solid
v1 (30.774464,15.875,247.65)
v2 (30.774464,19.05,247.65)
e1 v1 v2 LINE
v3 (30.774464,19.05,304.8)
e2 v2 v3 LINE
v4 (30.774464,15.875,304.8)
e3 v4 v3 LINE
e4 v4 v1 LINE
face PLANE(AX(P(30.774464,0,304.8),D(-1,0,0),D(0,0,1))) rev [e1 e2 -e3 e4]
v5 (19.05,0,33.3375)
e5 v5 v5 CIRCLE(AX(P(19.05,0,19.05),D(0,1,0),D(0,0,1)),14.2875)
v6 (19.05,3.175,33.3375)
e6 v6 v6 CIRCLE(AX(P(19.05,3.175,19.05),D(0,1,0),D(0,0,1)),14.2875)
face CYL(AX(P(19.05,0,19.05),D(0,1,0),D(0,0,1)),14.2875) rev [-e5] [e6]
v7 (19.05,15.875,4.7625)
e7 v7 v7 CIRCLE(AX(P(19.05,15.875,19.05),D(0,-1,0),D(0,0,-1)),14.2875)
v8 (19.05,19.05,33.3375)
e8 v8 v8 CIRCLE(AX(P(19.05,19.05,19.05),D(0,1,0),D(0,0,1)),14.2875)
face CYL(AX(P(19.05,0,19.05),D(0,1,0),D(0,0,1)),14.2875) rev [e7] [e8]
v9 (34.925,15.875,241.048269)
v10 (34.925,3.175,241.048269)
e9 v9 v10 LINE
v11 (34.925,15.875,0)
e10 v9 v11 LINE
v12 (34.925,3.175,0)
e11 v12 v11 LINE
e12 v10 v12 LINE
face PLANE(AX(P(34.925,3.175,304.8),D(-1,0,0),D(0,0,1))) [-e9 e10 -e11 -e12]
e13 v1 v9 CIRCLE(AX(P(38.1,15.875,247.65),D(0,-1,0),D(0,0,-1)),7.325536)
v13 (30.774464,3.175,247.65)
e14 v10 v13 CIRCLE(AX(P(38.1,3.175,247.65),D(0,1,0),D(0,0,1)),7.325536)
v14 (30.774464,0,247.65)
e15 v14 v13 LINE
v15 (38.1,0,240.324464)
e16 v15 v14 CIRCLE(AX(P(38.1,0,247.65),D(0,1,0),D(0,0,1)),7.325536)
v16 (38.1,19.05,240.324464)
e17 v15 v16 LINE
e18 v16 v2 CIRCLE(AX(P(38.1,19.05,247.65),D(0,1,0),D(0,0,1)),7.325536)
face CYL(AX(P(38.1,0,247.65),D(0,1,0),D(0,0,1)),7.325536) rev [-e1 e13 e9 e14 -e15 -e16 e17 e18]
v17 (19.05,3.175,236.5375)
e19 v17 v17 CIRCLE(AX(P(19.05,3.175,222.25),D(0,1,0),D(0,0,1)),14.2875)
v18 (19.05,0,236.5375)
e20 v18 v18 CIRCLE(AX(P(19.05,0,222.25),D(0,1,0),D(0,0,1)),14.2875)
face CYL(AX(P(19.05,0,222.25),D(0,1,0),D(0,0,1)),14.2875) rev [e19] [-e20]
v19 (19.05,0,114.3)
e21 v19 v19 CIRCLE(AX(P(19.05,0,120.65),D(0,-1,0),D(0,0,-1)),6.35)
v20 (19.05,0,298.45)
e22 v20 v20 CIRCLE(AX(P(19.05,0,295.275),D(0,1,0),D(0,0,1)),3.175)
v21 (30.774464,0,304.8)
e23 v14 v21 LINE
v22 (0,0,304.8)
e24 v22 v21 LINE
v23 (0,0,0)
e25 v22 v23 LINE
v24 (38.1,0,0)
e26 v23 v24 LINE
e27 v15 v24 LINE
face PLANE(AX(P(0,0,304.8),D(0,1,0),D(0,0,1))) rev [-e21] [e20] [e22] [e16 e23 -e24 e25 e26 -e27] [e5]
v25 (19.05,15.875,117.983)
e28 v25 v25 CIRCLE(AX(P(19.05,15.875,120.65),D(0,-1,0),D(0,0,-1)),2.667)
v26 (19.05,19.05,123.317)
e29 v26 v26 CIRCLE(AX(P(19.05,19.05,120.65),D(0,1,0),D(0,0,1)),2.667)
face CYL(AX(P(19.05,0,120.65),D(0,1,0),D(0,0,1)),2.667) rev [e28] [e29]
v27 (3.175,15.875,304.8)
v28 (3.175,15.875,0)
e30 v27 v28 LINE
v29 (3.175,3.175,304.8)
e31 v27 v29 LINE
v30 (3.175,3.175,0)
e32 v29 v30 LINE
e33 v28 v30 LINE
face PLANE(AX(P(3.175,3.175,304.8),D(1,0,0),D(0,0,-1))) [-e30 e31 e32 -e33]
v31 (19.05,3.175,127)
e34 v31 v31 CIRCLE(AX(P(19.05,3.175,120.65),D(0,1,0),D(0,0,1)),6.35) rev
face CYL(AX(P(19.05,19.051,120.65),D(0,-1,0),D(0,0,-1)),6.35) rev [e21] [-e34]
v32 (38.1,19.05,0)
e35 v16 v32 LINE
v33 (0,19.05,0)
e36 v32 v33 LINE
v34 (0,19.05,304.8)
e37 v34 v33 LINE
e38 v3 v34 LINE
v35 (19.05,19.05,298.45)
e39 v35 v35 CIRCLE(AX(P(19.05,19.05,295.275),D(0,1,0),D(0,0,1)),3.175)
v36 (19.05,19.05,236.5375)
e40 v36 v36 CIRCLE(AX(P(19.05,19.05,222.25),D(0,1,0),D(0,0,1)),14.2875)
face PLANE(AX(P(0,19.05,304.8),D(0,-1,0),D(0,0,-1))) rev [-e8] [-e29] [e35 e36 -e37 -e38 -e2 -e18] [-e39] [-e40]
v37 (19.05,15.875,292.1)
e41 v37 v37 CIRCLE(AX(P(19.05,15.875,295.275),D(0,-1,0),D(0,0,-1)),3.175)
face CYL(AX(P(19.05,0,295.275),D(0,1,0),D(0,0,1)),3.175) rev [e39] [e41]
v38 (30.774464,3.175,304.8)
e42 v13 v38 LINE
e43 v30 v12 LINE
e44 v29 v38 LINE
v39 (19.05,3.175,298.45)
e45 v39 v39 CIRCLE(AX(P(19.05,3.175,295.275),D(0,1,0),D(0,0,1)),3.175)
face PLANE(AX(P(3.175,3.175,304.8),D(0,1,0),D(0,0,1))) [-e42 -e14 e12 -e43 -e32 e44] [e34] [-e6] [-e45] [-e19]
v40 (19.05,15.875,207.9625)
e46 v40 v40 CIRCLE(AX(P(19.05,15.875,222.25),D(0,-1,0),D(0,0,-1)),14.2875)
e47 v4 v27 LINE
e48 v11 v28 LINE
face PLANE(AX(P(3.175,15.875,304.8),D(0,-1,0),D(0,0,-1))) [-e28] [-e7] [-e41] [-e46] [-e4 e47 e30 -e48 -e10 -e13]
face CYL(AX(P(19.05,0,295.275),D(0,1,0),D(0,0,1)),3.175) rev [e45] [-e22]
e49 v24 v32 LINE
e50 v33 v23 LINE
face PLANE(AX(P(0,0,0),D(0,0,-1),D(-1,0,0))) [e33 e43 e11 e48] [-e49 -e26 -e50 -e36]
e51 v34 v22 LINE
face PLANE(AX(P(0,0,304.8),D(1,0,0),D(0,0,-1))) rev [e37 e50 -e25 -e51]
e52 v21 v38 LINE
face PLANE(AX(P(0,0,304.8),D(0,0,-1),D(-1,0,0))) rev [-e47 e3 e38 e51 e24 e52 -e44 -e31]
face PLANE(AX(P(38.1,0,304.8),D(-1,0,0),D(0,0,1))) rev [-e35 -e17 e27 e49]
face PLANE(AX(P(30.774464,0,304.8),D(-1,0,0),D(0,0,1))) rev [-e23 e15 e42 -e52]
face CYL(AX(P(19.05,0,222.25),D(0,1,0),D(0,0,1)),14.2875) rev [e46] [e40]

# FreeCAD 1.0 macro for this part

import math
import FreeCAD as App
import Part
import Sketcher
Q = App.Units.Quantity

doc = App.newDocument("Part")
params = doc.addObject("Spreadsheet::Sheet", "Params")
for row, (alias, value) in enumerate([
    ("sketch1_width", "1.5 in"),
    ("sketch1_height", "0.5 in"),
    ("sketch1_width2", "1.25 in"),
    ("sketch1_height2", "0.75 in"),
    ("pad1_length", "12 in"),
    ("sketch2_diameter", "1.125 in"),
    ("sketch3_diameter", "0.25 in"),
    ("sketch4_height", "2.25 in"),
    ("sketch5_diameter", "0.21 in"),
    ("sketch6_diameter", "0.5 in"),
    ("pocket5_length", "0.125 in"),
], start=1):
    params.set(f"A{row}", alias)
    params.set(f"B{row}", "=" + value)
    params.setAlias(f"B{row}", alias)

body = doc.addObject("PartDesign::Body", "Body")

# Sketch on XY plane
sketch1 = body.newObject("Sketcher::SketchObject", "Sketch")
sketch1.AttachmentSupport = (doc.getObject("XY_Plane"), [""])
sketch1.MapMode = "FlatFace"
sketch1.addGeometry(Part.LineSegment(App.Vector(0, 19, 0), App.Vector(0, 0, 0)), False)
sketch1.addGeometry(Part.LineSegment(App.Vector(0, 0, 0), App.Vector(38, 0, 0)), False)
sketch1.addGeometry(Part.LineSegment(App.Vector(38, 0, 0), App.Vector(38, 19, 0)), False)
sketch1.addGeometry(Part.LineSegment(App.Vector(38, 19, 0), App.Vector(0, 19, 0)), False)
sketch1.addGeometry(Part.LineSegment(App.Vector(35, 3, 0), App.Vector(3, 3, 0)), False)
sketch1.addGeometry(Part.LineSegment(App.Vector(3, 3, 0), App.Vector(3, 16, 0)), False)
sketch1.addGeometry(Part.LineSegment(App.Vector(3, 16, 0), App.Vector(35, 16, 0)), False)
sketch1.addGeometry(Part.LineSegment(App.Vector(35, 16, 0), App.Vector(35, 3, 0)), False)
sketch1.addConstraint(Sketcher.Constraint("Coincident", 0, 2, 1, 1))
sketch1.addConstraint(Sketcher.Constraint("Coincident", 1, 2, 2, 1))
sketch1.addConstraint(Sketcher.Constraint("Coincident", 2, 2, 3, 1))
sketch1.addConstraint(Sketcher.Constraint("Coincident", 3, 2, 0, 1))
sketch1.addConstraint(Sketcher.Constraint("Coincident", 4, 2, 5, 1))
sketch1.addConstraint(Sketcher.Constraint("Coincident", 5, 2, 6, 1))
sketch1.addConstraint(Sketcher.Constraint("Coincident", 6, 2, 7, 1))
sketch1.addConstraint(Sketcher.Constraint("Coincident", 7, 2, 4, 1))
sketch1.addConstraint(Sketcher.Constraint("Vertical", 0))
sketch1.addConstraint(Sketcher.Constraint("Horizontal", 1))
sketch1.addConstraint(Sketcher.Constraint("Vertical", 2))
sketch1.addConstraint(Sketcher.Constraint("Horizontal", 3))
sketch1.addConstraint(Sketcher.Constraint("Horizontal", 4))
sketch1.addConstraint(Sketcher.Constraint("Vertical", 5))
sketch1.addConstraint(Sketcher.Constraint("Horizontal", 6))
sketch1.addConstraint(Sketcher.Constraint("Vertical", 7))
sketch1.addConstraint(Sketcher.Constraint("Coincident", 0, 2, -1, 1))
sketch1.addConstraint(Sketcher.Constraint("DistanceX", 1, 1, 1, 2, Q("1.5 in")))
sketch1.addConstraint(Sketcher.Constraint("DistanceY", 5, 1, 5, 2, Q("0.5 in")))
sketch1.addConstraint(Sketcher.Constraint("DistanceX", 4, 2, 4, 1, Q("1.25 in")))
sketch1.addConstraint(Sketcher.Constraint("DistanceY", 0, 2, 0, 1, Q("0.75 in")))
sketch1.addConstraint(Sketcher.Constraint("DistanceX", -1, 1, 4, 2, Q("0.125 in")))
sketch1.addConstraint(Sketcher.Constraint("DistanceY", -1, 1, 4, 2, Q("0.125 in")))
sketch1.setExpression("Constraints[17]", "Params.sketch1_width")
sketch1.setExpression("Constraints[18]", "Params.sketch1_height")
sketch1.setExpression("Constraints[19]", "Params.sketch1_width2")
sketch1.setExpression("Constraints[20]", "Params.sketch1_height2")
pad1 = body.newObject("PartDesign::Pad", "Pad")
pad1.Profile = sketch1
pad1.setExpression("Length", "Params.pad1_length")

# Sketch on XZ plane
sketch2 = body.newObject("Sketcher::SketchObject", "Sketch001")
sketch2.AttachmentSupport = (doc.getObject("XZ_Plane"), [""])
sketch2.MapMode = "FlatFace"
sketch2.AttachmentOffset = App.Placement(App.Vector(0, 0, -0.75 * 25.4), App.Rotation())
sketch2.addGeometry(Part.Circle(App.Vector(19, 19, 0), App.Vector(0, 0, 1), 14), False)
sketch2.addGeometry(Part.Circle(App.Vector(19, 222, 0), App.Vector(0, 0, 1), 14), False)
sketch2.addConstraint(Sketcher.Constraint("Equal", 0, 1))
sketch2.addConstraint(Sketcher.Constraint("Vertical", 0, 3, 1, 3))
sketch2.addConstraint(Sketcher.Constraint("Diameter", 0, Q("1.125 in")))
sketch2.addConstraint(Sketcher.Constraint("DistanceY", 0, 3, 1, 3, Q("8 in")))
sketch2.addConstraint(Sketcher.Constraint("DistanceX", -1, 1, 0, 3, Q("0.75 in")))
sketch2.addConstraint(Sketcher.Constraint("DistanceY", -1, 1, 0, 3, Q("0.75 in")))
sketch2.setExpression("Constraints[2]", "Params.sketch2_diameter")
pocket1 = body.newObject("PartDesign::Pocket", "Pocket")
pocket1.Profile = sketch2
pocket1.Type = "ThroughAll"
pocket1.Reversed = True

# Sketch on XZ plane
sketch3 = body.newObject("Sketcher::SketchObject", "Sketch002")
sketch3.AttachmentSupport = (doc.getObject("XZ_Plane"), [""])
sketch3.MapMode = "FlatFace"
sketch3.AttachmentOffset = App.Placement(App.Vector(0, 0, -0.75 * 25.4), App.Rotation())
sketch3.addGeometry(Part.Circle(App.Vector(19.1, 295.3, 0), App.Vector(0, 0, 1), 3.2), False)
sketch3.addConstraint(Sketcher.Constraint("Diameter", 0, Q("0.25 in")))
sketch3.addConstraint(Sketcher.Constraint("DistanceX", -1, 1, 0, 3, Q("0.75 in")))
sketch3.addConstraint(Sketcher.Constraint("DistanceY", -1, 1, 0, 3, Q("11.625 in")))
sketch3.setExpression("Constraints[0]", "Params.sketch3_diameter")
pocket2 = body.newObject("PartDesign::Pocket", "Pocket001")
pocket2.Profile = sketch3
pocket2.Type = "ThroughAll"
pocket2.Reversed = True

# Sketch on XZ plane
sketch4 = body.newObject("Sketcher::SketchObject", "Sketch003")
sketch4.AttachmentSupport = (doc.getObject("XZ_Plane"), [""])
sketch4.MapMode = "FlatFace"
sketch4.AttachmentOffset = App.Placement(App.Vector(0, 0, -0.75 * 25.4), App.Rotation())
sketch4.addGeometry(Part.LineSegment(App.Vector(31, 248, 0), App.Vector(31, 305, 0)), False)
sketch4.addGeometry(Part.LineSegment(App.Vector(31, 305, 0), App.Vector(38, 305, 0)), False)
sketch4.addGeometry(Part.LineSegment(App.Vector(38, 305, 0), App.Vector(38, 240, 0)), False)
sketch4.addGeometry(Part.ArcOfCircle(Part.Circle(App.Vector(38, 248, 0), App.Vector(0, 0, 1), 7), math.radians(180), math.radians(270)), False)
sketch4.addConstraint(Sketcher.Constraint("Coincident", 0, 2, 1, 1))
sketch4.addConstraint(Sketcher.Constraint("Coincident", 1, 2, 2, 1))
sketch4.addConstraint(Sketcher.Constraint("Coincident", 2, 2, 3, 2))
sketch4.addConstraint(Sketcher.Constraint("Tangent", 3, 1, 0, 1))
sketch4.addConstraint(Sketcher.Constraint("Vertical", 0))
sketch4.addConstraint(Sketcher.Constraint("Horizontal", 1))
sketch4.addConstraint(Sketcher.Constraint("Vertical", 2))
sketch4.addConstraint(Sketcher.Constraint("Vertical", 3, 3, 1, 2))
sketch4.addConstraint(Sketcher.Constraint("DistanceY", -1, 1, 0, 2, Q("12 in")))
sketch4.addConstraint(Sketcher.Constraint("DistanceY", 0, 1, 0, 2, Q("2.25 in")))
sketch4.addConstraint(Sketcher.Constraint("DistanceX", -1, 1, 3, 3, Q("1.5 in")))
sketch4.addConstraint(Sketcher.Constraint("Radius", 3, Q("7.325536 mm")))
sketch4.setExpression("Constraints[9]", "Params.sketch4_height")
pocket3 = body.newObject("PartDesign::Pocket", "Pocket002")
pocket3.Profile = sketch4
pocket3.Type = "ThroughAll"
pocket3.Reversed = True

# Sketch on XZ plane
sketch5 = body.newObject("Sketcher::SketchObject", "Sketch004")
sketch5.AttachmentSupport = (doc.getObject("XZ_Plane"), [""])
sketch5.MapMode = "FlatFace"
sketch5.AttachmentOffset = App.Placement(App.Vector(0, 0, -0.75 * 25.4), App.Rotation())
sketch5.addGeometry(Part.Circle(App.Vector(19.1, 120.7, 0), App.Vector(0, 0, 1), 2.7), False)
sketch5.addConstraint(Sketcher.Constraint("Diameter", 0, Q("0.21 in")))
sketch5.addConstraint(Sketcher.Constraint("DistanceX", -1, 1, 0, 3, Q("0.75 in")))
sketch5.addConstraint(Sketcher.Constraint("DistanceY", -1, 1, 0, 3, Q("4.75 in")))
sketch5.setExpression("Constraints[0]", "Params.sketch5_diameter")
pocket4 = body.newObject("PartDesign::Pocket", "Pocket003")
pocket4.Profile = sketch5
pocket4.Type = "ThroughAll"
pocket4.Reversed = True

# Sketch on XZ plane
sketch6 = body.newObject("Sketcher::SketchObject", "Sketch005")
sketch6.AttachmentSupport = (doc.getObject("XZ_Plane"), [""])
sketch6.MapMode = "FlatFace"
sketch6.addGeometry(Part.Circle(App.Vector(19, 121, 0), App.Vector(0, 0, 1), 6), False)
sketch6.addConstraint(Sketcher.Constraint("Diameter", 0, Q("0.5 in")))
sketch6.addConstraint(Sketcher.Constraint("DistanceX", -1, 1, 0, 3, Q("0.75 in")))
sketch6.addConstraint(Sketcher.Constraint("DistanceY", -1, 1, 0, 3, Q("4.75 in")))
sketch6.setExpression("Constraints[0]", "Params.sketch6_diameter")
pocket5 = body.newObject("PartDesign::Pocket", "Pocket004")
pocket5.Profile = sketch6
pocket5.setExpression("Length", "Params.pocket5_length")

doc.recompute()
